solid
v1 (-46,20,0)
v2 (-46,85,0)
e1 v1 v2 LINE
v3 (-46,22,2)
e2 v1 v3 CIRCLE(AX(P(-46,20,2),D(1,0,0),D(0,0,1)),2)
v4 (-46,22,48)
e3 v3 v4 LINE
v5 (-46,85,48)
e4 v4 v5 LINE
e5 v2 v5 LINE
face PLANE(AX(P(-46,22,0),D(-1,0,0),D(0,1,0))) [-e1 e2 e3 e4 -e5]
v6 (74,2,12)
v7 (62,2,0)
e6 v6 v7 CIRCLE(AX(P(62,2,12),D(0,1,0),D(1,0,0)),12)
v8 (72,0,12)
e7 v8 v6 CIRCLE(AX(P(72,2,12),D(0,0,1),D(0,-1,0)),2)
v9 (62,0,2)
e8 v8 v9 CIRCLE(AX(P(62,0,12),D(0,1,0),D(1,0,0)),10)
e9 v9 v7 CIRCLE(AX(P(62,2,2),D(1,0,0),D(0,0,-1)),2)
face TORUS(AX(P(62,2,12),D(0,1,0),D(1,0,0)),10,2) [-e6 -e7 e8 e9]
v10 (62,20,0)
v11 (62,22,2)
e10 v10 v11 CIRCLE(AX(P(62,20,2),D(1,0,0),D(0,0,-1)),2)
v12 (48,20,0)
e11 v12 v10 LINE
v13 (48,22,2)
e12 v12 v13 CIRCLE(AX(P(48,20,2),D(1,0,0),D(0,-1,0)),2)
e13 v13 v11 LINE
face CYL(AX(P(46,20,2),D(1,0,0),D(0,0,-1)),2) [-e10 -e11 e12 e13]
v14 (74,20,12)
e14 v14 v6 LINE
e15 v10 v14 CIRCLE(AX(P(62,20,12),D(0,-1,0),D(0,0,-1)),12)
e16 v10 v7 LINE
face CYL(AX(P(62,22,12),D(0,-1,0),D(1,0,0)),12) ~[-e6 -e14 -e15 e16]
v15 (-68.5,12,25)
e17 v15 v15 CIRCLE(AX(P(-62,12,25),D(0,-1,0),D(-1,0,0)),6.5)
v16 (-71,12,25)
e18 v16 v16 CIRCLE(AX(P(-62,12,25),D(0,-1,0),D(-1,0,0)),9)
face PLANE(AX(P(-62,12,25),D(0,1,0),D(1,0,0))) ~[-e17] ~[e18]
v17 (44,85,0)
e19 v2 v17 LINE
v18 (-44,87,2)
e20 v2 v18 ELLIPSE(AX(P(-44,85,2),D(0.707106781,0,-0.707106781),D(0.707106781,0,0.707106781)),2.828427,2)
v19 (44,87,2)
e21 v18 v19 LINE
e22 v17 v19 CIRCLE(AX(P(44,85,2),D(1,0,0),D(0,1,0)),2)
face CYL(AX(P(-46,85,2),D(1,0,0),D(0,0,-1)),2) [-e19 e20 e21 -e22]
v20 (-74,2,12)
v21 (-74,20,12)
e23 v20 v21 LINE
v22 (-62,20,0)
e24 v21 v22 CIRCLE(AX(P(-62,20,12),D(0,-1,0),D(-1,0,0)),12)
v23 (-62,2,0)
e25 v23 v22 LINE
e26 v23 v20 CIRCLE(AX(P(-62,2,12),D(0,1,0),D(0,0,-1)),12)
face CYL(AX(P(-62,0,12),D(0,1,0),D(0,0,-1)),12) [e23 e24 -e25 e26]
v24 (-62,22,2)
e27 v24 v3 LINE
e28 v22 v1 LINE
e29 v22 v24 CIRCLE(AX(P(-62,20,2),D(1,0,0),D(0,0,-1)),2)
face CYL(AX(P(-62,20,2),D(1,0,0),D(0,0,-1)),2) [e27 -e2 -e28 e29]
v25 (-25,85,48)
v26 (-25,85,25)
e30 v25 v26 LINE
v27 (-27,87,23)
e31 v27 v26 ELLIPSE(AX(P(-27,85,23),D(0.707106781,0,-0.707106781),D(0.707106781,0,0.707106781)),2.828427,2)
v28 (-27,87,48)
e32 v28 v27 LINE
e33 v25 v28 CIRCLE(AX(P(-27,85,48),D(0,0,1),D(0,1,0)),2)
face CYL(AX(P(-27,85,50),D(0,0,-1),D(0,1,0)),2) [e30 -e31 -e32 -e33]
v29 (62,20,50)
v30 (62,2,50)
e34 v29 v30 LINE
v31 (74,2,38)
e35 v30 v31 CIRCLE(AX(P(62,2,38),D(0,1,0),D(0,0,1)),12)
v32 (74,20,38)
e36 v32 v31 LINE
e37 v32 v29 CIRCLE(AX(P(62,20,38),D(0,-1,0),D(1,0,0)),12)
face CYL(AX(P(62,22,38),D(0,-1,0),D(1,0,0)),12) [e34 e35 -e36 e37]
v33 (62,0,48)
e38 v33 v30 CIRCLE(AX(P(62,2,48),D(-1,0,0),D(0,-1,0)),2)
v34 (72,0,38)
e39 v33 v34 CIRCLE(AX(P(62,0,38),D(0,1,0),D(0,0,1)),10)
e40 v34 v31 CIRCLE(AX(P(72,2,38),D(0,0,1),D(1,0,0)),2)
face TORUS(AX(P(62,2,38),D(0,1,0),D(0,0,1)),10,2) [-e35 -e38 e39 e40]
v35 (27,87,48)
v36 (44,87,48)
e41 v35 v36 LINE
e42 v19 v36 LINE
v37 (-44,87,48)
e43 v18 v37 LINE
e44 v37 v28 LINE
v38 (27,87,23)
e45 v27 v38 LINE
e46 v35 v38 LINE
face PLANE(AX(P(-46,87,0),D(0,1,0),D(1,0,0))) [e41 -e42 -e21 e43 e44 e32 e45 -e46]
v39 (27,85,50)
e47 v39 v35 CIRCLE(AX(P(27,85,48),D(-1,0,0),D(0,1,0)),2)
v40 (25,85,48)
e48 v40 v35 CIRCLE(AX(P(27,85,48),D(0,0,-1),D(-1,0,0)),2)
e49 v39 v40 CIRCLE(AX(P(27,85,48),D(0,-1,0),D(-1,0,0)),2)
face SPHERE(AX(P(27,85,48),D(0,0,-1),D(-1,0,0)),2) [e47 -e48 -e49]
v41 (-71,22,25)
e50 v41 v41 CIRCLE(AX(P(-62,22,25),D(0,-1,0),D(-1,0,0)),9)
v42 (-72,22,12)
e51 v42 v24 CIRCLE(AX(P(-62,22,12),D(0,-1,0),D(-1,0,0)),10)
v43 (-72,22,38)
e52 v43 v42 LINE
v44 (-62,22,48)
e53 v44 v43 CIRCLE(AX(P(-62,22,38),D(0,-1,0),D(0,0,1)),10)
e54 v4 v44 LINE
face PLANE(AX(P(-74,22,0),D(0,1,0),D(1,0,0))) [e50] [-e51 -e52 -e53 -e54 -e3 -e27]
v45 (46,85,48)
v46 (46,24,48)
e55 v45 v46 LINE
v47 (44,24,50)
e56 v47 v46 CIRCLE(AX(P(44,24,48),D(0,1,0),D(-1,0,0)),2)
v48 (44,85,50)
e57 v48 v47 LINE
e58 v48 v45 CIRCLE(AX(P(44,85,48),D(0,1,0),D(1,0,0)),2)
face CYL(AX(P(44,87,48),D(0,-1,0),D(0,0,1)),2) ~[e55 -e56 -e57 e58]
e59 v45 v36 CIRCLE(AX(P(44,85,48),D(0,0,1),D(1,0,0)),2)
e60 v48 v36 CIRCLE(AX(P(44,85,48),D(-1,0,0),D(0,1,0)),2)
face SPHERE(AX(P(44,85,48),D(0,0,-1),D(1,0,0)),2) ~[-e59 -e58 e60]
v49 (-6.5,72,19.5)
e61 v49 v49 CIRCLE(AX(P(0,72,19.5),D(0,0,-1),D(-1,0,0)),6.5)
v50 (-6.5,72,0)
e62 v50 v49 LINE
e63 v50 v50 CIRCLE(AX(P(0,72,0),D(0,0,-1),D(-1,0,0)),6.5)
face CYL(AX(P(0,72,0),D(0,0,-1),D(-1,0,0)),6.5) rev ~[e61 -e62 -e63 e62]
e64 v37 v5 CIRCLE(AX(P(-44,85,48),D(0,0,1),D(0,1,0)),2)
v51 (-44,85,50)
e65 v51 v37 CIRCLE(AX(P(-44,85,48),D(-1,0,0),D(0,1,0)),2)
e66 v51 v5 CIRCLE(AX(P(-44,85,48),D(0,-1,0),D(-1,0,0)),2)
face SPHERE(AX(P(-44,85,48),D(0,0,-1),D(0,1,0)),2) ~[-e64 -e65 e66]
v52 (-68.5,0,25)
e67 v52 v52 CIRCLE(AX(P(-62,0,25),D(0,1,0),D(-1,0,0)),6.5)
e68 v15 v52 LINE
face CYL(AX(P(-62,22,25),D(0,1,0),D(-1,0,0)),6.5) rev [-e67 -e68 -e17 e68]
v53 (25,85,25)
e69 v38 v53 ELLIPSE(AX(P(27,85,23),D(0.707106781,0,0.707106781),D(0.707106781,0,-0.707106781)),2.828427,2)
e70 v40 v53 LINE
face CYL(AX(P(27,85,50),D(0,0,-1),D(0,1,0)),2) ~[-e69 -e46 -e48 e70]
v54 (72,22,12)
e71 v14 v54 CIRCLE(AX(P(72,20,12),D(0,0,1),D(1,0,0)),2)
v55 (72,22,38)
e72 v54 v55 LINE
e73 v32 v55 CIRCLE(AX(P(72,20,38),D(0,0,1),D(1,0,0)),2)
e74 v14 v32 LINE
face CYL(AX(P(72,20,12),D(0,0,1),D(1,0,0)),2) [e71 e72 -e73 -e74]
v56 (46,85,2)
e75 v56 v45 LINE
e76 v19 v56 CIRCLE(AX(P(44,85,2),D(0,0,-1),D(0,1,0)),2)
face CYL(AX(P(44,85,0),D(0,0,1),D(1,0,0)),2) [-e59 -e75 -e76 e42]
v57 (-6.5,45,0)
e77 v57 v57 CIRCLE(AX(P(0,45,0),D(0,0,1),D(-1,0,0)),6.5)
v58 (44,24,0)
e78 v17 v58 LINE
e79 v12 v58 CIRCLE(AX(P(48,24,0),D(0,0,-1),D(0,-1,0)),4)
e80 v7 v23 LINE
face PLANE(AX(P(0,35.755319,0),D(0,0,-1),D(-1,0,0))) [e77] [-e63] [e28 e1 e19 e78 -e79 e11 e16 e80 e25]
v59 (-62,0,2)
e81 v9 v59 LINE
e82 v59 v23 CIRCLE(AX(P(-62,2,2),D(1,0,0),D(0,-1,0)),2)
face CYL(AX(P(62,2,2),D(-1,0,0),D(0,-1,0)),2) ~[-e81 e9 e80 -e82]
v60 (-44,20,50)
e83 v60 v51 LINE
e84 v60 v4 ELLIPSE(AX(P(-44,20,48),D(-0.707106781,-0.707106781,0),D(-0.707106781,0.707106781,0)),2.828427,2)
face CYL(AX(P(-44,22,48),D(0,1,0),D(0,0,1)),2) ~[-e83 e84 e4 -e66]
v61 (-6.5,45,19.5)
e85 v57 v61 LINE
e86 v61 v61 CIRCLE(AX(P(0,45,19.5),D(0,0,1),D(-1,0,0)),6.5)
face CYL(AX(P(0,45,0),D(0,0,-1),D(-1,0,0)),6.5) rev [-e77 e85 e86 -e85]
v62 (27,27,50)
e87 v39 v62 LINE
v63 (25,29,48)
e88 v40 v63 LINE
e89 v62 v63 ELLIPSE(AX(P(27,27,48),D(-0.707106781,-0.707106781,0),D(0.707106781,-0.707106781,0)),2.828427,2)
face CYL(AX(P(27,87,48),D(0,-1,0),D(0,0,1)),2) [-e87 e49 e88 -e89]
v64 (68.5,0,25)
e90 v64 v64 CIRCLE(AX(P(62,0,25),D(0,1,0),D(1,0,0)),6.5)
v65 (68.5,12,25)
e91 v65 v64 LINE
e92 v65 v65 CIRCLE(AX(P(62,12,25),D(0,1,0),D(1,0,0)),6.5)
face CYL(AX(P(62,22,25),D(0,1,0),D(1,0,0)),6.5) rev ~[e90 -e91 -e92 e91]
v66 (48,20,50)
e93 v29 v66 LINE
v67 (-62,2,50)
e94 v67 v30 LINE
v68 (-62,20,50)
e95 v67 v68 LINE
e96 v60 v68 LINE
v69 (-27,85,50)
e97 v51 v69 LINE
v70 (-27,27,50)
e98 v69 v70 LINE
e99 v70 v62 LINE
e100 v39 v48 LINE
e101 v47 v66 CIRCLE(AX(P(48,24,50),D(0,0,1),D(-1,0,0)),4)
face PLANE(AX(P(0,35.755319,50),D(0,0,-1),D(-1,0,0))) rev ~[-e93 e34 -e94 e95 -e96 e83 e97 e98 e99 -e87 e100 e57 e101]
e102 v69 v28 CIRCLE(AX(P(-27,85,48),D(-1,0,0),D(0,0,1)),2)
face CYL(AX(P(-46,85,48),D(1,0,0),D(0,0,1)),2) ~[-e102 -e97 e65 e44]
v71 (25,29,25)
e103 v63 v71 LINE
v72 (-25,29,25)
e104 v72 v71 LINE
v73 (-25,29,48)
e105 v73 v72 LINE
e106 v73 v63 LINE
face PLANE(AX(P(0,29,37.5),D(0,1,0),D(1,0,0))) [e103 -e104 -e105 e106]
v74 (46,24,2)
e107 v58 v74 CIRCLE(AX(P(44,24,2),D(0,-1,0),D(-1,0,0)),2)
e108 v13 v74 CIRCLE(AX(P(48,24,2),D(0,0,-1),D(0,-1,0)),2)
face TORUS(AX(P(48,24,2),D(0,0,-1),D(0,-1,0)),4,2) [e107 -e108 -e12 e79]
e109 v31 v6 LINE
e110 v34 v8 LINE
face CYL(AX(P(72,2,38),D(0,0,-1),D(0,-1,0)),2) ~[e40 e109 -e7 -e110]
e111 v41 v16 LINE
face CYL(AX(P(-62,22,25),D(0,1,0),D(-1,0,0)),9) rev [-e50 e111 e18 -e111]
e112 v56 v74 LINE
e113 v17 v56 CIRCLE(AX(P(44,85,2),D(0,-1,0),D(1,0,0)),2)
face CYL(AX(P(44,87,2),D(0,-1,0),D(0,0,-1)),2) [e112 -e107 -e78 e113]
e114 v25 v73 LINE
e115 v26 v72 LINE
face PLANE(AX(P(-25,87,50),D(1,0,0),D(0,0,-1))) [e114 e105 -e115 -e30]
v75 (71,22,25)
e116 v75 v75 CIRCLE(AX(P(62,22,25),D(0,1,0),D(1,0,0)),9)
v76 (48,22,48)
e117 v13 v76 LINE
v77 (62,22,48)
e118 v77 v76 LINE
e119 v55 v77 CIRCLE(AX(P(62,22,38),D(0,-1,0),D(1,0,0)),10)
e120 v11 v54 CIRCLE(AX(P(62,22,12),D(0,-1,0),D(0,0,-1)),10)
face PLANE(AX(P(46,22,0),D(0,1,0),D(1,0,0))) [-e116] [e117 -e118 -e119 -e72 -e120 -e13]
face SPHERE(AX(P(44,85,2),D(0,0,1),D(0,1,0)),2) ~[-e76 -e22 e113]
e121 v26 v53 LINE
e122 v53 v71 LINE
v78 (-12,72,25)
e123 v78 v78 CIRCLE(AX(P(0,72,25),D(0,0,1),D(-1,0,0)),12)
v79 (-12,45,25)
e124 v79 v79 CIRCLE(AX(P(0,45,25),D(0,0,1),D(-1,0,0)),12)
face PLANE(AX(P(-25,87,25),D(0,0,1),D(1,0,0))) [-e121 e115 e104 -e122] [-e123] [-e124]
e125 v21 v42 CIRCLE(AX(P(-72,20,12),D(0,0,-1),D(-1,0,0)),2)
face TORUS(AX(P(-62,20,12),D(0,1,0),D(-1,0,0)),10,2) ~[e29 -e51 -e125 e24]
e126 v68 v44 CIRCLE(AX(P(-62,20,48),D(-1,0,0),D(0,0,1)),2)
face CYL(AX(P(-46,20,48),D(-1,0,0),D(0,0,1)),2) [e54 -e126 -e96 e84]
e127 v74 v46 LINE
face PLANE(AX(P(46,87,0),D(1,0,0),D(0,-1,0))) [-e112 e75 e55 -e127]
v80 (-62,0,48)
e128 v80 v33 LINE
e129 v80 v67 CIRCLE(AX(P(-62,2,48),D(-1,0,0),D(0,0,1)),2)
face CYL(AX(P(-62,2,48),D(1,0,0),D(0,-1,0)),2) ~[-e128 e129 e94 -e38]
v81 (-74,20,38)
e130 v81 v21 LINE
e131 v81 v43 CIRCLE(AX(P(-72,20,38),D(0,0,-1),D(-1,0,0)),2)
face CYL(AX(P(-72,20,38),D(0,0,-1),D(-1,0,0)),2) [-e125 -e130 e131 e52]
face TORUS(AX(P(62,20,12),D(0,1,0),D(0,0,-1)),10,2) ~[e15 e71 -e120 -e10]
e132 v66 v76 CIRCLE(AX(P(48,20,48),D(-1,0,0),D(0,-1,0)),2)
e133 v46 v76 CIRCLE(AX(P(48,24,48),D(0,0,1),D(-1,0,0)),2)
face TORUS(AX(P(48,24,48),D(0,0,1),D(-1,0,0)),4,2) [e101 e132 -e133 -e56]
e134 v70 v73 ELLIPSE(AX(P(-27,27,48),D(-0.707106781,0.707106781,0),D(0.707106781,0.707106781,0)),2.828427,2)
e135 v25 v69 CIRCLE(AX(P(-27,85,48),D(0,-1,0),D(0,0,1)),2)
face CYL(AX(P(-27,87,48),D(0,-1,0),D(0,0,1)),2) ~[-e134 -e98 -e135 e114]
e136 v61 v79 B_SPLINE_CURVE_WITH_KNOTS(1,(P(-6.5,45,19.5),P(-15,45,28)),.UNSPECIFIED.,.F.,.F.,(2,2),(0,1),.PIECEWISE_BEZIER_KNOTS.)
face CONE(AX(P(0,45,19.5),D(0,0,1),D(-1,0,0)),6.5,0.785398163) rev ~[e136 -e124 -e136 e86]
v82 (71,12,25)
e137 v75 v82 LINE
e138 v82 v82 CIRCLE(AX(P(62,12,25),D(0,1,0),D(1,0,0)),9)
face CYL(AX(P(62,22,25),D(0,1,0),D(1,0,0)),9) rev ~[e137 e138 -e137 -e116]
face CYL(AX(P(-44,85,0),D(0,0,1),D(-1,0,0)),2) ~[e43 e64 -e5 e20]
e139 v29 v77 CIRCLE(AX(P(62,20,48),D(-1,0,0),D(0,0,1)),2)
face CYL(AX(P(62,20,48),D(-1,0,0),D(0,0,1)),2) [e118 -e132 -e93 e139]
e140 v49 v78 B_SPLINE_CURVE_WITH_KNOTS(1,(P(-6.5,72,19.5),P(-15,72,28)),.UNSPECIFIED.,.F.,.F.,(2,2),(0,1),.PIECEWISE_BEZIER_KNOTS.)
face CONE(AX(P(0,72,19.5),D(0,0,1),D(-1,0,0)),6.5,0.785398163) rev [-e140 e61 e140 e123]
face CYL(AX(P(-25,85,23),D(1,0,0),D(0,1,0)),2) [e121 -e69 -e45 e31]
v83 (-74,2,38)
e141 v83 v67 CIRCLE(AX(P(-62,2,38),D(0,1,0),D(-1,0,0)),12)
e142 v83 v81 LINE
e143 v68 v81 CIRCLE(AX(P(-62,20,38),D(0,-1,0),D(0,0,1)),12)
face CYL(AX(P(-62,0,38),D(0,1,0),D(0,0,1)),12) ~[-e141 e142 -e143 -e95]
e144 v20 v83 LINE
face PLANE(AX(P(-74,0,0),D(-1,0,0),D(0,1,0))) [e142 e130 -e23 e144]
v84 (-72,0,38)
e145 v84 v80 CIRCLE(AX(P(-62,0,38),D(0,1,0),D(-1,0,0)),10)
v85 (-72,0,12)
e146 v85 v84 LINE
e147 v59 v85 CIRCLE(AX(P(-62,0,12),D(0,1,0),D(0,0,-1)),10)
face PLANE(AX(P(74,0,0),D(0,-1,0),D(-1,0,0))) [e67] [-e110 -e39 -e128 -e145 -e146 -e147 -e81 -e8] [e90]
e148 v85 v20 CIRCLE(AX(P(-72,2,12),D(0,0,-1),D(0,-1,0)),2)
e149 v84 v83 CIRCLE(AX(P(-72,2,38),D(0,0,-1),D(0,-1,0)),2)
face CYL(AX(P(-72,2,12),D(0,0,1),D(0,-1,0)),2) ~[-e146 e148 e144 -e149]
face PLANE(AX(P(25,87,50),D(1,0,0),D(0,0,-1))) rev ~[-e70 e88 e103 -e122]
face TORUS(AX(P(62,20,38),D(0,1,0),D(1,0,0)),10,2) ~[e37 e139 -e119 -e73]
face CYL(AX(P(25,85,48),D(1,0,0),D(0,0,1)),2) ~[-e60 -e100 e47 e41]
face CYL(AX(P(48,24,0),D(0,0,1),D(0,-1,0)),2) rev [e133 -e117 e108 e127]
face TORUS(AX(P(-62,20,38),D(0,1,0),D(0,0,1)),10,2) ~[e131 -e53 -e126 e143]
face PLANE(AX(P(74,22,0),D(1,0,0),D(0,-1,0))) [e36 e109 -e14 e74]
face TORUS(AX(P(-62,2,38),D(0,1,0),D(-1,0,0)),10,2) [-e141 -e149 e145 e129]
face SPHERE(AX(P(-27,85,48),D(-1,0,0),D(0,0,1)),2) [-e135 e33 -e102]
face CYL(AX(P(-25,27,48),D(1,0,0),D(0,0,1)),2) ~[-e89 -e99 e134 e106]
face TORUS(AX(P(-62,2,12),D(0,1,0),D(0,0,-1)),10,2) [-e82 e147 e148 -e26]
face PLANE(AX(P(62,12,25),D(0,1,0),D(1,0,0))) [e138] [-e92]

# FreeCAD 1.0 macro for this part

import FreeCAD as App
import Part
import Sketcher

V = App.Vector


def edges_at(feature, points):
    """Names of the edges that pass closest to the given points."""
    edges = feature.Shape.Edges
    near = lambda p: min(range(len(edges)), key=lambda i: edges[i].distToShape(Part.Vertex(*p))[0])
    return sorted({f"Edge{near(p) + 1}" for p in points})

doc = App.newDocument("Part")
body = doc.addObject("PartDesign::Body", "Body")

sketch1 = doc.addObject("Sketcher::SketchObject", "Sketch")
body.addObject(sketch1)
sketch1.AttachmentSupport = (doc.XY_Plane, [""])
sketch1.MapMode = "FlatFace"
sketch1.addGeometry(Part.LineSegment(V(-74, 0, 0), V(74, 0, 0)), False)
sketch1.addGeometry(Part.LineSegment(V(74, 0, 0), V(74, 22, 0)), False)
sketch1.addGeometry(Part.LineSegment(V(74, 22, 0), V(46, 22, 0)), False)
sketch1.addGeometry(Part.LineSegment(V(46, 22, 0), V(46, 87, 0)), False)
sketch1.addGeometry(Part.LineSegment(V(46, 87, 0), V(-46, 87, 0)), False)
sketch1.addGeometry(Part.LineSegment(V(-46, 87, 0), V(-46, 22, 0)), False)
sketch1.addGeometry(Part.LineSegment(V(-46, 22, 0), V(-74, 22, 0)), False)
sketch1.addGeometry(Part.LineSegment(V(-74, 22, 0), V(-74, 0, 0)), False)
sketch1.addConstraint(Sketcher.Constraint("Coincident", 0, 2, 1, 1))
sketch1.addConstraint(Sketcher.Constraint("Coincident", 1, 2, 2, 1))
sketch1.addConstraint(Sketcher.Constraint("Coincident", 2, 2, 3, 1))
sketch1.addConstraint(Sketcher.Constraint("Coincident", 3, 2, 4, 1))
sketch1.addConstraint(Sketcher.Constraint("Coincident", 4, 2, 5, 1))
sketch1.addConstraint(Sketcher.Constraint("Coincident", 5, 2, 6, 1))
sketch1.addConstraint(Sketcher.Constraint("Coincident", 6, 2, 7, 1))
sketch1.addConstraint(Sketcher.Constraint("Coincident", 7, 2, 0, 1))
sketch1.addConstraint(Sketcher.Constraint("Horizontal", 0))
sketch1.addConstraint(Sketcher.Constraint("Vertical", 1))
sketch1.addConstraint(Sketcher.Constraint("Horizontal", 2))
sketch1.addConstraint(Sketcher.Constraint("Vertical", 3))
sketch1.addConstraint(Sketcher.Constraint("Horizontal", 4))
sketch1.addConstraint(Sketcher.Constraint("Vertical", 5))
sketch1.addConstraint(Sketcher.Constraint("Horizontal", 6))
sketch1.addConstraint(Sketcher.Constraint("Vertical", 7))
sketch1.addConstraint(Sketcher.Constraint("Symmetric", 0, 2, 7, 2, -1, 1))
sketch1.addConstraint(Sketcher.Constraint("Symmetric", 2, 2, 5, 2, -2))
sketch1.addConstraint(Sketcher.Constraint("DistanceX", 0, 1, 0, 2, 148.0))
sketch1.addConstraint(Sketcher.Constraint("DistanceX", 2, 2, 2, 1, 28.0))
sketch1.addConstraint(Sketcher.Constraint("DistanceY", 1, 1, 1, 2, 22.0))
sketch1.addConstraint(Sketcher.Constraint("DistanceY", 3, 1, 3, 2, 65.0))
pad1 = doc.addObject("PartDesign::Pad", "Pad")
body.addObject(pad1)
pad1.Profile = sketch1
pad1.Length = 50

sketch2 = doc.addObject("Sketcher::SketchObject", "Sketch001")
body.addObject(sketch2)
sketch2.AttachmentSupport = (doc.XZ_Plane, [""])
sketch2.MapMode = "FlatFace"
sketch2.AttachmentOffset = App.Placement(V(0, 0, -87), App.Rotation())
sketch2.addGeometry(Part.LineSegment(V(-25, 25, 0), V(-25, 50, 0)), False)
sketch2.addGeometry(Part.LineSegment(V(-25, 50, 0), V(25, 50, 0)), False)
sketch2.addGeometry(Part.LineSegment(V(25, 50, 0), V(25, 25, 0)), False)
sketch2.addGeometry(Part.LineSegment(V(25, 25, 0), V(-25, 25, 0)), False)
sketch2.addConstraint(Sketcher.Constraint("Coincident", 0, 2, 1, 1))
sketch2.addConstraint(Sketcher.Constraint("Coincident", 1, 2, 2, 1))
sketch2.addConstraint(Sketcher.Constraint("Coincident", 2, 2, 3, 1))
sketch2.addConstraint(Sketcher.Constraint("Coincident", 3, 2, 0, 1))
sketch2.addConstraint(Sketcher.Constraint("Vertical", 0))
sketch2.addConstraint(Sketcher.Constraint("Horizontal", 1))
sketch2.addConstraint(Sketcher.Constraint("Vertical", 2))
sketch2.addConstraint(Sketcher.Constraint("Horizontal", 3))
sketch2.addConstraint(Sketcher.Constraint("DistanceX", 1, 1, 1, 2, 50.0))
sketch2.addConstraint(Sketcher.Constraint("DistanceY", 0, 1, 0, 2, 25.0))
sketch2.addConstraint(Sketcher.Constraint("DistanceX", 0, 2, -1, 1, 25.0))
sketch2.addConstraint(Sketcher.Constraint("DistanceY", -1, 1, 0, 2, 50.0))
pocket1 = doc.addObject("PartDesign::Pocket", "Pocket")
body.addObject(pocket1)
pocket1.Profile = sketch2
pocket1.Length = 58
pocket1.Reversed = True

sketch3 = doc.addObject("Sketcher::SketchObject", "Sketch002")
body.addObject(sketch3)
sketch3.AttachmentSupport = (doc.XZ_Plane, [""])
sketch3.MapMode = "FlatFace"
sketch3.AttachmentOffset = App.Placement(V(0, 0, -22), App.Rotation())
sketch3.addGeometry(Part.Circle(V(62, 25, 0), V(0, 0, 1), 6), False)
sketch3.addConstraint(Sketcher.Constraint("Diameter", 0, 13.0))
sketch3.addConstraint(Sketcher.Constraint("DistanceX", -1, 1, 0, 3, 62.0))
sketch3.addConstraint(Sketcher.Constraint("DistanceY", -1, 1, 0, 3, 25.0))
pocket2 = doc.addObject("PartDesign::Pocket", "Pocket001")
body.addObject(pocket2)
pocket2.Profile = sketch3
pocket2.Length = 58
pocket2.Reversed = True

sketch4 = doc.addObject("Sketcher::SketchObject", "Sketch003")
body.addObject(sketch4)
sketch4.AttachmentSupport = (doc.XZ_Plane, [""])
sketch4.MapMode = "FlatFace"
sketch4.AttachmentOffset = App.Placement(V(0, 0, -22), App.Rotation())
sketch4.addGeometry(Part.Circle(V(62, 25, 0), V(0, 0, 1), 9), False)
sketch4.addGeometry(Part.Circle(V(62, 25, 0), V(0, 0, 1), 6), False)
sketch4.addConstraint(Sketcher.Constraint("Coincident", 1, 3, 0, 3))
sketch4.addConstraint(Sketcher.Constraint("Diameter", 0, 18.0))
sketch4.addConstraint(Sketcher.Constraint("Diameter", 1, 13.0))
sketch4.addConstraint(Sketcher.Constraint("DistanceX", -1, 1, 0, 3, 62.0))
sketch4.addConstraint(Sketcher.Constraint("DistanceY", -1, 1, 0, 3, 25.0))
pocket3 = doc.addObject("PartDesign::Pocket", "Pocket002")
body.addObject(pocket3)
pocket3.Profile = sketch4
pocket3.Length = 10
pocket3.Reversed = True
doc.recompute()

mirrored = doc.addObject("PartDesign::Mirrored", "Mirrored")
body.addObject(mirrored)
mirrored.Originals = [pocket2, pocket3]
mirrored.MirrorPlane = (doc.YZ_Plane, [""])
body.Tip = mirrored

sketch5 = doc.addObject("Sketcher::SketchObject", "Sketch004")
body.addObject(sketch5)
sketch5.AttachmentSupport = (doc.XY_Plane, [""])
sketch5.MapMode = "FlatFace"
sketch5.addGeometry(Part.Circle(V(0, 72, 0), V(0, 0, 1), 6), False)
sketch5.addConstraint(Sketcher.Constraint("PointOnObject", 0, 3, -2))
sketch5.addConstraint(Sketcher.Constraint("Diameter", 0, 13.0))
sketch5.addConstraint(Sketcher.Constraint("DistanceY", -1, 1, 0, 3, 72.0))
pocket4 = doc.addObject("PartDesign::Pocket", "Pocket003")
body.addObject(pocket4)
pocket4.Profile = sketch5
pocket4.Length = 19.5
pocket4.Reversed = True

sketch6 = doc.addObject("Sketcher::SketchObject", "Sketch005")
body.addObject(sketch6)
sketch6.AttachmentSupport = (doc.XY_Plane, [""])
sketch6.MapMode = "FlatFace"
sketch6.AttachmentOffset = App.Placement(V(0, 0, 19.5), App.Rotation())
sketch6.addGeometry(Part.Circle(V(0, 72, 0), V(0, 0, 1), 6), False)
sketch6.addConstraint(Sketcher.Constraint("PointOnObject", 0, 3, -2))
sketch6.addConstraint(Sketcher.Constraint("Diameter", 0, 13.0))
sketch6.addConstraint(Sketcher.Constraint("DistanceY", -1, 1, 0, 3, 72.0))
pocket5 = doc.addObject("PartDesign::Pocket", "Pocket004")
body.addObject(pocket5)
pocket5.Profile = sketch6
pocket5.Length = 8.5
pocket5.Reversed = True
pocket5.TaperAngle = 45
doc.recompute()

datumplane = doc.addObject("PartDesign::Plane", "DatumPlane")
body.addObject(datumplane)
datumplane.AttachmentSupport = (doc.XZ_Plane, [""])
datumplane.MapMode = "FlatFace"
datumplane.AttachmentOffset = App.Placement(V(0, 0, -58.5), App.Rotation())
mirrored2 = doc.addObject("PartDesign::Mirrored", "Mirrored001")
body.addObject(mirrored2)
mirrored2.Originals = [pocket4, pocket5]
mirrored2.MirrorPlane = (datumplane, [""])
body.Tip = mirrored2
doc.recompute()

fillet = doc.addObject("PartDesign::Fillet", "Fillet")
body.addObject(fillet)
fillet.Base = (mirrored2, edges_at(mirrored2, [
    (-74, 11, 0),
    (-74, 11, 50),
    (74, 11, 50),
    (74, 11, 0),
]))
fillet.Radius = 12
doc.recompute()

fillet2 = doc.addObject("PartDesign::Fillet", "Fillet001")
body.addObject(fillet2)
fillet2.Base = (fillet, edges_at(fillet, [
    (-54, 22, 0),
    (-46, 87, 25),
    (46, 87, 25),
    (46, 22, 25),
    (-35.5, 87, 50),
    (25, 87, 37.5),
    (0, 29, 50),
    (25, 58, 50),
    (46, 54.5, 50),
    (-25, 58, 50),
    (0, 87, 25),
    (-25, 87, 37.5),
    (35.5, 87, 50),
    (-46, 54.5, 50),
    (-74, 0, 25),
    (-74, 22, 25),
    (0, 0, 0),
    (74, 0, 25),
    (0, 0, 50),
    (70.485, 0, 46.485),
    (70.485, 0, 3.515),
    (-70.485, 0, 46.485),
    (-70.485, 0, 3.515),
    (54, 22, 0),
    (0, 87, 0),
    (-70.485, 22, 46.485),
    (-70.485, 22, 3.515),
    (54, 22, 50),
    (74, 22, 25),
    (70.485, 22, 46.485),
    (-54, 22, 50),
    (46, 54.5, 0),
    (70.485, 22, 3.515),
]))
fillet2.Radius = 2

doc.recompute()
